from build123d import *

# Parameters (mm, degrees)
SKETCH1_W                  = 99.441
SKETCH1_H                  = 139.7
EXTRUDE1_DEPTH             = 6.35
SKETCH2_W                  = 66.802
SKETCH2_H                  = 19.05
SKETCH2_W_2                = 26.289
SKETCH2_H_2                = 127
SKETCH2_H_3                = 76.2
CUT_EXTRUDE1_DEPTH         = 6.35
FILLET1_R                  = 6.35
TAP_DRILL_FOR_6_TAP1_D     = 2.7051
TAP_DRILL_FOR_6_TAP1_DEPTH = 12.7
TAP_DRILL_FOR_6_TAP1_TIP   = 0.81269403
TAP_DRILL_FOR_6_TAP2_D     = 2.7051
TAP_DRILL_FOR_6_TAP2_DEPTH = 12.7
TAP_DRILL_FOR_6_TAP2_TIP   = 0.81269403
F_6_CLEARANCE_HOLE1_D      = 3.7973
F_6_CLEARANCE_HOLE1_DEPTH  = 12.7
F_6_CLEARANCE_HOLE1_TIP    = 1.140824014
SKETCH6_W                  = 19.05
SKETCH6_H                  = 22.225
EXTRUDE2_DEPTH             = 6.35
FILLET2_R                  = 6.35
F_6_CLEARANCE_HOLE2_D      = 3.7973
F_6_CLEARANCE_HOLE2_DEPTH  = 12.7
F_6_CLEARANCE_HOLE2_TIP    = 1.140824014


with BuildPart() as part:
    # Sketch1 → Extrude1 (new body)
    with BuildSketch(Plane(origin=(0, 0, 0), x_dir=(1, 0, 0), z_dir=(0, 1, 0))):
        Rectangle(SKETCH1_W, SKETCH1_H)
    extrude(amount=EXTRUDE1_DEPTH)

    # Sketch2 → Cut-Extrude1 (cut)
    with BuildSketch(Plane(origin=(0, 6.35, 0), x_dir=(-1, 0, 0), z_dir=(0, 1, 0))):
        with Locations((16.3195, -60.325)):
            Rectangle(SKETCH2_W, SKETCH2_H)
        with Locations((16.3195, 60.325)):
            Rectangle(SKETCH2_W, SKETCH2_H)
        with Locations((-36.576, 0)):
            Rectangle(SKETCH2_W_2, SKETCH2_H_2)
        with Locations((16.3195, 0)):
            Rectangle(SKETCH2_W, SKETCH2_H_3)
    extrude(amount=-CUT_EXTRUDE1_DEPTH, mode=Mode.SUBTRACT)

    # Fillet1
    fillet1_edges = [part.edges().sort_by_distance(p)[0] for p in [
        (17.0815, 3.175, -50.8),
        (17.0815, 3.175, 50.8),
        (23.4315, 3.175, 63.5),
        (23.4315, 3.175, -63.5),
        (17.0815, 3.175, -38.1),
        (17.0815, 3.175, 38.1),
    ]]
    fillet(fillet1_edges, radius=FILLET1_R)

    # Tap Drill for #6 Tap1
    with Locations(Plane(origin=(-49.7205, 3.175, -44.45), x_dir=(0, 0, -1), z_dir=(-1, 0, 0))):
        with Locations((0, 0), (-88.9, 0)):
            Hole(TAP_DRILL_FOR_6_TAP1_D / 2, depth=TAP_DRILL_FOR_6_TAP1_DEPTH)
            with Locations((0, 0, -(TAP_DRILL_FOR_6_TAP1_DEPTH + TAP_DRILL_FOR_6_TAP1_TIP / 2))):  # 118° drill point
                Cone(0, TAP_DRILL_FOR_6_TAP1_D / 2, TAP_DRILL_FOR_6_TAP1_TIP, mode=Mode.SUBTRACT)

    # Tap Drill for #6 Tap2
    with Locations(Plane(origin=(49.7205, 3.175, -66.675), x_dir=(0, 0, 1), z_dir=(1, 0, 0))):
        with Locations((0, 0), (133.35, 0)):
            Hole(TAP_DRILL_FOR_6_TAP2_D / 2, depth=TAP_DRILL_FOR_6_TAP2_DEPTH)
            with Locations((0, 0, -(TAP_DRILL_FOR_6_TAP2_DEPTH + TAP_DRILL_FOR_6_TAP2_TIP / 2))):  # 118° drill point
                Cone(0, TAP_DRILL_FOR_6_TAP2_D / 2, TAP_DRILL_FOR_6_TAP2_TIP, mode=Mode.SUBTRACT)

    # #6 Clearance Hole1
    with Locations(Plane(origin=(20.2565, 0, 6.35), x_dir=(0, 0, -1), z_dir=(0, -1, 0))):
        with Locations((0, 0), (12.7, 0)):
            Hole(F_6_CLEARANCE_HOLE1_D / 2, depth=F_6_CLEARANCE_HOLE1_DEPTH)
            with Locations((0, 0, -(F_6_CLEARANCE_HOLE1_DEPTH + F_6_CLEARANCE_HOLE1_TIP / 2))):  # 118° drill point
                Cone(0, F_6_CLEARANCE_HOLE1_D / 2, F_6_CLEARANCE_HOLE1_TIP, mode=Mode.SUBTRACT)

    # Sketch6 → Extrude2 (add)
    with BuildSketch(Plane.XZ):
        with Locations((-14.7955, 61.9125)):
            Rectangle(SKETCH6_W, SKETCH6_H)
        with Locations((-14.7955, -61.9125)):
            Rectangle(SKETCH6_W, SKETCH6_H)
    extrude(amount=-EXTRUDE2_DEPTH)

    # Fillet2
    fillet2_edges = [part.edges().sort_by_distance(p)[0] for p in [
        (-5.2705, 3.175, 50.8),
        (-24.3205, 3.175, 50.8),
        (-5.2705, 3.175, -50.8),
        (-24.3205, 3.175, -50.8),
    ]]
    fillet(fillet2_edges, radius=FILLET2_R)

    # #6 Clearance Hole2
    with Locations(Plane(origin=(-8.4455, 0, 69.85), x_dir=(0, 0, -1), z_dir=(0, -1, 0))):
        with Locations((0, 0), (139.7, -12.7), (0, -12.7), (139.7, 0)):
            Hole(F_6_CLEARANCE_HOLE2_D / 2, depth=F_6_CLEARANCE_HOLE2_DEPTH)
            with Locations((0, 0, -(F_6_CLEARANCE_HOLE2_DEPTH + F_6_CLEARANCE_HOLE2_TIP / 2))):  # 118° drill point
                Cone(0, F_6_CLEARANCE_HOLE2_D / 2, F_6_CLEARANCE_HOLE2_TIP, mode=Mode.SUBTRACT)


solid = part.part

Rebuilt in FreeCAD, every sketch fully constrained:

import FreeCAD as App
import Part
import Sketcher
from FreeCAD import Vector
Q = App.Units.Quantity


def edges_at(feature, points):
    """Names of the edges that pass closest to the given points."""
    edges = feature.Shape.Edges
    near = lambda p: min(range(len(edges)), key=lambda i: edges[i].distToShape(Part.Vertex(*p))[0])
    return sorted({f"Edge{near(p) + 1}" for p in points})

doc = App.newDocument("Part")
params = doc.addObject("Spreadsheet::Sheet", "Params")
for row, (alias, value) in enumerate([
    ("sketch1_height", "5.5 in"),
    ("sketch1_width", "3.915 in"),
    ("pad1_length", "0.25 in"),
    ("sketch2_height", "5 in"),
    ("sketch2_height2", "3 in"),
    ("sketch2_width", "2.63 in"),
    ("sketch2_height3", "0.75 in"),
    ("sketch2_width2", "1.035 in"),
    ("pocket1_length", "0.25 in"),
    ("fillet_radius", "0.25 in"),
    ("hole_diameter", "0.1065 in"),
    ("hole_depth", "0.5 in"),
    ("hole2_diameter", "0.1065 in"),
    ("hole2_depth", "0.5 in"),
    ("hole3_diameter", "0.1495 in"),
    ("hole3_depth", "0.5 in"),
    ("sketch6_width", "0.75 in"),
    ("sketch6_height", "0.875 in"),
    ("pad2_length", "0.25 in"),
    ("fillet2_radius", "0.25 in"),
    ("hole4_diameter", "0.1495 in"),
    ("hole4_depth", "0.5 in"),
], start=1):
    params.set(f"A{row}", alias)
    params.set(f"B{row}", "=" + value)
    params.setAlias(f"B{row}", alias)

body = doc.addObject("PartDesign::Body", "Body")

sketch1 = body.newObject("Sketcher::SketchObject", "Sketch")
sketch1.AttachmentSupport = (doc.getObject("XZ_Plane"), [""])
sketch1.MapMode = "FlatFace"
sketch1.addGeometry([
    Part.LineSegment(Vector(-49.7205, -69.85, 0), Vector(-49.7205, 69.85, 0)),
    Part.LineSegment(Vector(-49.7205, 69.85, 0), Vector(49.7205, 69.85, 0)),
    Part.LineSegment(Vector(49.7205, 69.85, 0), Vector(49.7205, -69.85, 0)),
    Part.LineSegment(Vector(49.7205, -69.85, 0), Vector(-49.7205, -69.85, 0)),
], False)
sketch1.addConstraint([
    Sketcher.Constraint("Coincident", 0, 2, 1, 1),
    Sketcher.Constraint("Coincident", 1, 2, 2, 1),
    Sketcher.Constraint("Coincident", 2, 2, 3, 1),
    Sketcher.Constraint("Coincident", 3, 2, 0, 1),
    Sketcher.Constraint("Vertical", 0),
    Sketcher.Constraint("Horizontal", 1),
    Sketcher.Constraint("Vertical", 2),
    Sketcher.Constraint("Horizontal", 3),
    Sketcher.Constraint("Symmetric", 0, 2, 2, 2, -1, 1),
    Sketcher.Constraint("DistanceY", 0, 1, 0, 2, Q("5.5 in")),
    Sketcher.Constraint("DistanceX", 1, 1, 1, 2, Q("3.915 in")),
])
sketch1.setExpression("Constraints[9]", "Params.sketch1_height")
sketch1.setExpression("Constraints[10]", "Params.sketch1_width")
pad1 = body.newObject("PartDesign::Pad", "Pad")
pad1.Profile = sketch1
pad1.setExpression("Length", "Params.pad1_length")
pad1.Reversed = True

sketch2 = body.newObject("Sketcher::SketchObject", "Sketch001")
sketch2.AttachmentSupport = (doc.getObject("XZ_Plane"), [""])
sketch2.MapMode = "FlatFace"
sketch2.AttachmentOffset = App.Placement(Vector(0, 0, -0.25 * 25.4), App.Rotation())
sketch2.addGeometry([
    Part.LineSegment(Vector(17.0815, -50.8, 0), Vector(17.0815, -69.85, 0)),
    Part.LineSegment(Vector(17.0815, -69.85, 0), Vector(-49.7205, -69.85, 0)),
    Part.LineSegment(Vector(-49.7205, -69.85, 0), Vector(-49.7205, -50.8, 0)),
    Part.LineSegment(Vector(-49.7205, -50.8, 0), Vector(17.0815, -50.8, 0)),
    Part.LineSegment(Vector(17.0815, 69.85, 0), Vector(17.0815, 50.8, 0)),
    Part.LineSegment(Vector(17.0815, 50.8, 0), Vector(-49.7205, 50.8, 0)),
    Part.LineSegment(Vector(-49.7205, 50.8, 0), Vector(-49.7205, 69.85, 0)),
    Part.LineSegment(Vector(-49.7205, 69.85, 0), Vector(17.0815, 69.85, 0)),
    Part.LineSegment(Vector(49.7205, 63.5, 0), Vector(49.7205, -63.5, 0)),
    Part.LineSegment(Vector(49.7205, -63.5, 0), Vector(23.4315, -63.5, 0)),
    Part.LineSegment(Vector(23.4315, -63.5, 0), Vector(23.4315, 63.5, 0)),
    Part.LineSegment(Vector(23.4315, 63.5, 0), Vector(49.7205, 63.5, 0)),
    Part.LineSegment(Vector(17.0815, 38.1, 0), Vector(17.0815, -38.1, 0)),
    Part.LineSegment(Vector(17.0815, -38.1, 0), Vector(-49.7205, -38.1, 0)),
    Part.LineSegment(Vector(-49.7205, -38.1, 0), Vector(-49.7205, 38.1, 0)),
    Part.LineSegment(Vector(-49.7205, 38.1, 0), Vector(17.0815, 38.1, 0)),
], False)
sketch2.addConstraint([
    Sketcher.Constraint("Coincident", 0, 2, 1, 1),
    Sketcher.Constraint("Coincident", 1, 2, 2, 1),
    Sketcher.Constraint("Coincident", 2, 2, 3, 1),
    Sketcher.Constraint("Coincident", 3, 2, 0, 1),
    Sketcher.Constraint("Coincident", 4, 2, 5, 1),
    Sketcher.Constraint("Coincident", 5, 2, 6, 1),
    Sketcher.Constraint("Coincident", 6, 2, 7, 1),
    Sketcher.Constraint("Coincident", 7, 2, 4, 1),
    Sketcher.Constraint("Coincident", 8, 2, 9, 1),
    Sketcher.Constraint("Coincident", 9, 2, 10, 1),
    Sketcher.Constraint("Coincident", 10, 2, 11, 1),
    Sketcher.Constraint("Coincident", 11, 2, 8, 1),
    Sketcher.Constraint("Coincident", 12, 2, 13, 1),
    Sketcher.Constraint("Coincident", 13, 2, 14, 1),
    Sketcher.Constraint("Coincident", 14, 2, 15, 1),
    Sketcher.Constraint("Coincident", 15, 2, 12, 1),
    Sketcher.Constraint("Vertical", 0),
    Sketcher.Constraint("Horizontal", 1),
    Sketcher.Constraint("Vertical", 2),
    Sketcher.Constraint("Horizontal", 3),
    Sketcher.Constraint("Vertical", 4),
    Sketcher.Constraint("Horizontal", 5),
    Sketcher.Constraint("Vertical", 6),
    Sketcher.Constraint("Horizontal", 7),
    Sketcher.Constraint("Vertical", 8),
    Sketcher.Constraint("Horizontal", 9),
    Sketcher.Constraint("Vertical", 10),
    Sketcher.Constraint("Horizontal", 11),
    Sketcher.Constraint("Vertical", 12),
    Sketcher.Constraint("Horizontal", 13),
    Sketcher.Constraint("Vertical", 14),
    Sketcher.Constraint("Horizontal", 15),
    Sketcher.Constraint("Symmetric", 3, 2, 4, 2, -1),
    Sketcher.Constraint("Symmetric", 1, 2, 6, 2, -1),
    Sketcher.Constraint("Vertical", 7, 2, 12, 2),
    Sketcher.Constraint("Vertical", 6, 2, 13, 2),
    Sketcher.Constraint("DistanceY", 8, 2, 8, 1, Q("5 in")),
    Sketcher.Constraint("DistanceY", 12, 2, 12, 1, Q("3 in")),
    Sketcher.Constraint("DistanceY", 2, 2, -1, 1, Q("2 in")),
    Sketcher.Constraint("DistanceY", 9, 2, 12, 2, Q("1 in")),
    Sketcher.Constraint("DistanceX", 1, 2, 1, 1, Q("2.63 in")),
    Sketcher.Constraint("DistanceY", 0, 2, 0, 1, Q("0.75 in")),
    Sketcher.Constraint("DistanceY", 8, 2, -1, 1, Q("2.5 in")),
    Sketcher.Constraint("DistanceX", 9, 2, 9, 1, Q("1.035 in")),
    Sketcher.Constraint("DistanceX", 0, 2, 9, 2, Q("0.25 in")),
    Sketcher.Constraint("DistanceX", -1, 1, 0, 2, Q("0.6725 in")),
])
sketch2.setExpression("Constraints[36]", "Params.sketch2_height")
sketch2.setExpression("Constraints[37]", "Params.sketch2_height2")
sketch2.setExpression("Constraints[40]", "Params.sketch2_width")
sketch2.setExpression("Constraints[41]", "Params.sketch2_height3")
sketch2.setExpression("Constraints[43]", "Params.sketch2_width2")
pocket1 = body.newObject("PartDesign::Pocket", "Pocket")
pocket1.Profile = sketch2
pocket1.setExpression("Length", "Params.pocket1_length")
pocket1.Reversed = True
doc.recompute()

fillet = body.newObject("PartDesign::Fillet", "Fillet")
fillet.Base = (pocket1, edges_at(pocket1, [
    (17.081, 3.175, -50.8),
    (17.081, 3.175, 50.8),
    (23.431, 3.175, 63.5),
    (23.431, 3.175, -63.5),
    (17.081, 3.175, -38.1),
    (17.081, 3.175, 38.1),
]))
fillet.setExpression("Radius", "Params.fillet_radius")

sketch3 = body.newObject("Sketcher::SketchObject", "Sketch002")
sketch3.AttachmentSupport = (doc.getObject("YZ_Plane"), [""])
sketch3.MapMode = "FlatFace"
sketch3.AttachmentOffset = App.Placement(Vector(0, 0, -1.9575 * 25.4), App.Rotation())
sketch3.addGeometry([
    Part.Circle(Vector(3.175, -44.45, 0), Vector(0, 0, 1), 1.35255),
    Part.Circle(Vector(3.175, 44.45, 0), Vector(0, 0, 1), 1.35255),
], False)
sketch3.addConstraint([
    Sketcher.Constraint("Equal", 0, 1),
    Sketcher.Constraint("Symmetric", 0, 3, 1, 3, -1),
    Sketcher.Constraint("Diameter", 0, Q("0.1065 in")),
    Sketcher.Constraint("DistanceY", 0, 3, 1, 3, Q("3.5 in")),
    Sketcher.Constraint("DistanceX", -1, 1, 0, 3, Q("0.125 in")),
])
doc.recompute()
hole = body.newObject("PartDesign::Hole", "Hole")
hole.Profile = sketch3
hole.ThreadType = "None"
hole.setExpression("Diameter", "Params.hole_diameter")
hole.DepthType = "Dimension"
hole.setExpression("Depth", "Params.hole_depth")
hole.DrillPoint = "Angled"
hole.DrillPointAngle = 118
hole.Reversed = True

sketch4 = body.newObject("Sketcher::SketchObject", "Sketch003")
sketch4.AttachmentSupport = (doc.getObject("YZ_Plane"), [""])
sketch4.MapMode = "FlatFace"
sketch4.AttachmentOffset = App.Placement(Vector(0, 0, 1.9575 * 25.4), App.Rotation())
sketch4.addGeometry([
    Part.Circle(Vector(3.175, -66.675, 0), Vector(0, 0, 1), 1.35255),
    Part.Circle(Vector(3.175, 66.675, 0), Vector(0, 0, 1), 1.35255),
], False)
sketch4.addConstraint([
    Sketcher.Constraint("Equal", 0, 1),
    Sketcher.Constraint("Symmetric", 0, 3, 1, 3, -1),
    Sketcher.Constraint("Diameter", 0, Q("0.1065 in")),
    Sketcher.Constraint("DistanceY", 0, 3, 1, 3, Q("5.25 in")),
    Sketcher.Constraint("DistanceX", -1, 1, 0, 3, Q("0.125 in")),
])
doc.recompute()
hole2 = body.newObject("PartDesign::Hole", "Hole001")
hole2.Profile = sketch4
hole2.ThreadType = "None"
hole2.setExpression("Diameter", "Params.hole2_diameter")
hole2.DepthType = "Dimension"
hole2.setExpression("Depth", "Params.hole2_depth")
hole2.DrillPoint = "Angled"
hole2.DrillPointAngle = 118

sketch5 = body.newObject("Sketcher::SketchObject", "Sketch004")
sketch5.AttachmentSupport = (doc.getObject("XZ_Plane"), [""])
sketch5.MapMode = "FlatFace"
sketch5.addGeometry([
    Part.Circle(Vector(20.2565, 6.35, 0), Vector(0, 0, 1), 1.89865),
    Part.Circle(Vector(20.2565, -6.35, 0), Vector(0, 0, 1), 1.89865),
], False)
sketch5.addConstraint([
    Sketcher.Constraint("Equal", 0, 1),
    Sketcher.Constraint("Symmetric", 0, 3, 1, 3, -1),
    Sketcher.Constraint("Diameter", 0, Q("0.1495 in")),
    Sketcher.Constraint("DistanceY", 1, 3, 0, 3, Q("0.5 in")),
    Sketcher.Constraint("DistanceX", -1, 1, 0, 3, Q("0.7975 in")),
])
doc.recompute()
hole3 = body.newObject("PartDesign::Hole", "Hole002")
hole3.Profile = sketch5
hole3.ThreadType = "None"
hole3.setExpression("Diameter", "Params.hole3_diameter")
hole3.DepthType = "Dimension"
hole3.setExpression("Depth", "Params.hole3_depth")
hole3.DrillPoint = "Angled"
hole3.DrillPointAngle = 118

sketch6 = body.newObject("Sketcher::SketchObject", "Sketch005")
sketch6.AttachmentSupport = (doc.getObject("XZ_Plane"), [""])
sketch6.MapMode = "FlatFace"
sketch6.addGeometry([
    Part.LineSegment(Vector(-24.3205, 73.025, 0), Vector(-24.3205, 50.8, 0)),
    Part.LineSegment(Vector(-24.3205, 50.8, 0), Vector(-5.2705, 50.8, 0)),
    Part.LineSegment(Vector(-5.2705, 50.8, 0), Vector(-5.2705, 73.025, 0)),
    Part.LineSegment(Vector(-5.2705, 73.025, 0), Vector(-24.3205, 73.025, 0)),
    Part.LineSegment(Vector(-24.3205, -50.8, 0), Vector(-24.3205, -73.025, 0)),
    Part.LineSegment(Vector(-24.3205, -73.025, 0), Vector(-5.2705, -73.025, 0)),
    Part.LineSegment(Vector(-5.2705, -73.025, 0), Vector(-5.2705, -50.8, 0)),
    Part.LineSegment(Vector(-5.2705, -50.8, 0), Vector(-24.3205, -50.8, 0)),
], False)
sketch6.addConstraint([
    Sketcher.Constraint("Coincident", 0, 2, 1, 1),
    Sketcher.Constraint("Coincident", 1, 2, 2, 1),
    Sketcher.Constraint("Coincident", 2, 2, 3, 1),
    Sketcher.Constraint("Coincident", 3, 2, 0, 1),
    Sketcher.Constraint("Coincident", 4, 2, 5, 1),
    Sketcher.Constraint("Coincident", 5, 2, 6, 1),
    Sketcher.Constraint("Coincident", 6, 2, 7, 1),
    Sketcher.Constraint("Coincident", 7, 2, 4, 1),
    Sketcher.Constraint("Vertical", 0),
    Sketcher.Constraint("Horizontal", 1),
    Sketcher.Constraint("Vertical", 2),
    Sketcher.Constraint("Horizontal", 3),
    Sketcher.Constraint("Vertical", 4),
    Sketcher.Constraint("Horizontal", 5),
    Sketcher.Constraint("Vertical", 6),
    Sketcher.Constraint("Horizontal", 7),
    Sketcher.Constraint("Symmetric", 3, 2, 4, 2, -1),
    Sketcher.Constraint("Symmetric", 1, 2, 6, 2, -1),
    Sketcher.Constraint("DistanceY", -1, 1, 0, 2, Q("2 in")),
    Sketcher.Constraint("DistanceX", 1, 1, 1, 2, Q("0.75 in")),
    Sketcher.Constraint("DistanceY", 0, 2, 0, 1, Q("0.875 in")),
    Sketcher.Constraint("DistanceX", 0, 2, -1, 1, Q("0.9575 in")),
])
sketch6.setExpression("Constraints[19]", "Params.sketch6_width")
sketch6.setExpression("Constraints[20]", "Params.sketch6_height")
pad2 = body.newObject("PartDesign::Pad", "Pad001")
pad2.Profile = sketch6
pad2.setExpression("Length", "Params.pad2_length")
pad2.Reversed = True
doc.recompute()

fillet2 = body.newObject("PartDesign::Fillet", "Fillet001")
fillet2.Base = (pad2, edges_at(pad2, [
    (-5.271, 3.175, 50.8),
    (-24.32, 3.175, 50.8),
    (-5.271, 3.175, -50.8),
    (-24.32, 3.175, -50.8),
]))
fillet2.setExpression("Radius", "Params.fillet2_radius")

sketch7 = body.newObject("Sketcher::SketchObject", "Sketch006")
sketch7.AttachmentSupport = (doc.getObject("XZ_Plane"), [""])
sketch7.MapMode = "FlatFace"
sketch7.addGeometry([
    Part.Circle(Vector(-8.4455, 69.85, 0), Vector(0, 0, 1), 1.89865),
    Part.Circle(Vector(-21.1455, -69.85, 0), Vector(0, 0, 1), 1.89865),
    Part.Circle(Vector(-21.1455, 69.85, 0), Vector(0, 0, 1), 1.89865),
    Part.Circle(Vector(-8.4455, -69.85, 0), Vector(0, 0, 1), 1.89865),
], False)
sketch7.addConstraint([
    Sketcher.Constraint("Equal", 0, 1),
    Sketcher.Constraint("Equal", 1, 2),
    Sketcher.Constraint("Equal", 2, 3),
    Sketcher.Constraint("Symmetric", 1, 3, 2, 3, -1),
    Sketcher.Constraint("Symmetric", 0, 3, 3, 3, -1),
    Sketcher.Constraint("Horizontal", 0, 3, 2, 3),
    Sketcher.Constraint("Diameter", 0, Q("0.1495 in")),
    Sketcher.Constraint("DistanceX", 1, 3, 0, 3, Q("0.5 in")),
    Sketcher.Constraint("DistanceY", 1, 3, 0, 3, Q("5.5 in")),
    Sketcher.Constraint("DistanceX", 0, 3, -1, 1, Q("0.3325 in")),
])
doc.recompute()
hole4 = body.newObject("PartDesign::Hole", "Hole003")
hole4.Profile = sketch7
hole4.ThreadType = "None"
hole4.setExpression("Diameter", "Params.hole4_diameter")
hole4.DepthType = "Dimension"
hole4.setExpression("Depth", "Params.hole4_depth")
hole4.DrillPoint = "Angled"
hole4.DrillPointAngle = 118

doc.recompute()
